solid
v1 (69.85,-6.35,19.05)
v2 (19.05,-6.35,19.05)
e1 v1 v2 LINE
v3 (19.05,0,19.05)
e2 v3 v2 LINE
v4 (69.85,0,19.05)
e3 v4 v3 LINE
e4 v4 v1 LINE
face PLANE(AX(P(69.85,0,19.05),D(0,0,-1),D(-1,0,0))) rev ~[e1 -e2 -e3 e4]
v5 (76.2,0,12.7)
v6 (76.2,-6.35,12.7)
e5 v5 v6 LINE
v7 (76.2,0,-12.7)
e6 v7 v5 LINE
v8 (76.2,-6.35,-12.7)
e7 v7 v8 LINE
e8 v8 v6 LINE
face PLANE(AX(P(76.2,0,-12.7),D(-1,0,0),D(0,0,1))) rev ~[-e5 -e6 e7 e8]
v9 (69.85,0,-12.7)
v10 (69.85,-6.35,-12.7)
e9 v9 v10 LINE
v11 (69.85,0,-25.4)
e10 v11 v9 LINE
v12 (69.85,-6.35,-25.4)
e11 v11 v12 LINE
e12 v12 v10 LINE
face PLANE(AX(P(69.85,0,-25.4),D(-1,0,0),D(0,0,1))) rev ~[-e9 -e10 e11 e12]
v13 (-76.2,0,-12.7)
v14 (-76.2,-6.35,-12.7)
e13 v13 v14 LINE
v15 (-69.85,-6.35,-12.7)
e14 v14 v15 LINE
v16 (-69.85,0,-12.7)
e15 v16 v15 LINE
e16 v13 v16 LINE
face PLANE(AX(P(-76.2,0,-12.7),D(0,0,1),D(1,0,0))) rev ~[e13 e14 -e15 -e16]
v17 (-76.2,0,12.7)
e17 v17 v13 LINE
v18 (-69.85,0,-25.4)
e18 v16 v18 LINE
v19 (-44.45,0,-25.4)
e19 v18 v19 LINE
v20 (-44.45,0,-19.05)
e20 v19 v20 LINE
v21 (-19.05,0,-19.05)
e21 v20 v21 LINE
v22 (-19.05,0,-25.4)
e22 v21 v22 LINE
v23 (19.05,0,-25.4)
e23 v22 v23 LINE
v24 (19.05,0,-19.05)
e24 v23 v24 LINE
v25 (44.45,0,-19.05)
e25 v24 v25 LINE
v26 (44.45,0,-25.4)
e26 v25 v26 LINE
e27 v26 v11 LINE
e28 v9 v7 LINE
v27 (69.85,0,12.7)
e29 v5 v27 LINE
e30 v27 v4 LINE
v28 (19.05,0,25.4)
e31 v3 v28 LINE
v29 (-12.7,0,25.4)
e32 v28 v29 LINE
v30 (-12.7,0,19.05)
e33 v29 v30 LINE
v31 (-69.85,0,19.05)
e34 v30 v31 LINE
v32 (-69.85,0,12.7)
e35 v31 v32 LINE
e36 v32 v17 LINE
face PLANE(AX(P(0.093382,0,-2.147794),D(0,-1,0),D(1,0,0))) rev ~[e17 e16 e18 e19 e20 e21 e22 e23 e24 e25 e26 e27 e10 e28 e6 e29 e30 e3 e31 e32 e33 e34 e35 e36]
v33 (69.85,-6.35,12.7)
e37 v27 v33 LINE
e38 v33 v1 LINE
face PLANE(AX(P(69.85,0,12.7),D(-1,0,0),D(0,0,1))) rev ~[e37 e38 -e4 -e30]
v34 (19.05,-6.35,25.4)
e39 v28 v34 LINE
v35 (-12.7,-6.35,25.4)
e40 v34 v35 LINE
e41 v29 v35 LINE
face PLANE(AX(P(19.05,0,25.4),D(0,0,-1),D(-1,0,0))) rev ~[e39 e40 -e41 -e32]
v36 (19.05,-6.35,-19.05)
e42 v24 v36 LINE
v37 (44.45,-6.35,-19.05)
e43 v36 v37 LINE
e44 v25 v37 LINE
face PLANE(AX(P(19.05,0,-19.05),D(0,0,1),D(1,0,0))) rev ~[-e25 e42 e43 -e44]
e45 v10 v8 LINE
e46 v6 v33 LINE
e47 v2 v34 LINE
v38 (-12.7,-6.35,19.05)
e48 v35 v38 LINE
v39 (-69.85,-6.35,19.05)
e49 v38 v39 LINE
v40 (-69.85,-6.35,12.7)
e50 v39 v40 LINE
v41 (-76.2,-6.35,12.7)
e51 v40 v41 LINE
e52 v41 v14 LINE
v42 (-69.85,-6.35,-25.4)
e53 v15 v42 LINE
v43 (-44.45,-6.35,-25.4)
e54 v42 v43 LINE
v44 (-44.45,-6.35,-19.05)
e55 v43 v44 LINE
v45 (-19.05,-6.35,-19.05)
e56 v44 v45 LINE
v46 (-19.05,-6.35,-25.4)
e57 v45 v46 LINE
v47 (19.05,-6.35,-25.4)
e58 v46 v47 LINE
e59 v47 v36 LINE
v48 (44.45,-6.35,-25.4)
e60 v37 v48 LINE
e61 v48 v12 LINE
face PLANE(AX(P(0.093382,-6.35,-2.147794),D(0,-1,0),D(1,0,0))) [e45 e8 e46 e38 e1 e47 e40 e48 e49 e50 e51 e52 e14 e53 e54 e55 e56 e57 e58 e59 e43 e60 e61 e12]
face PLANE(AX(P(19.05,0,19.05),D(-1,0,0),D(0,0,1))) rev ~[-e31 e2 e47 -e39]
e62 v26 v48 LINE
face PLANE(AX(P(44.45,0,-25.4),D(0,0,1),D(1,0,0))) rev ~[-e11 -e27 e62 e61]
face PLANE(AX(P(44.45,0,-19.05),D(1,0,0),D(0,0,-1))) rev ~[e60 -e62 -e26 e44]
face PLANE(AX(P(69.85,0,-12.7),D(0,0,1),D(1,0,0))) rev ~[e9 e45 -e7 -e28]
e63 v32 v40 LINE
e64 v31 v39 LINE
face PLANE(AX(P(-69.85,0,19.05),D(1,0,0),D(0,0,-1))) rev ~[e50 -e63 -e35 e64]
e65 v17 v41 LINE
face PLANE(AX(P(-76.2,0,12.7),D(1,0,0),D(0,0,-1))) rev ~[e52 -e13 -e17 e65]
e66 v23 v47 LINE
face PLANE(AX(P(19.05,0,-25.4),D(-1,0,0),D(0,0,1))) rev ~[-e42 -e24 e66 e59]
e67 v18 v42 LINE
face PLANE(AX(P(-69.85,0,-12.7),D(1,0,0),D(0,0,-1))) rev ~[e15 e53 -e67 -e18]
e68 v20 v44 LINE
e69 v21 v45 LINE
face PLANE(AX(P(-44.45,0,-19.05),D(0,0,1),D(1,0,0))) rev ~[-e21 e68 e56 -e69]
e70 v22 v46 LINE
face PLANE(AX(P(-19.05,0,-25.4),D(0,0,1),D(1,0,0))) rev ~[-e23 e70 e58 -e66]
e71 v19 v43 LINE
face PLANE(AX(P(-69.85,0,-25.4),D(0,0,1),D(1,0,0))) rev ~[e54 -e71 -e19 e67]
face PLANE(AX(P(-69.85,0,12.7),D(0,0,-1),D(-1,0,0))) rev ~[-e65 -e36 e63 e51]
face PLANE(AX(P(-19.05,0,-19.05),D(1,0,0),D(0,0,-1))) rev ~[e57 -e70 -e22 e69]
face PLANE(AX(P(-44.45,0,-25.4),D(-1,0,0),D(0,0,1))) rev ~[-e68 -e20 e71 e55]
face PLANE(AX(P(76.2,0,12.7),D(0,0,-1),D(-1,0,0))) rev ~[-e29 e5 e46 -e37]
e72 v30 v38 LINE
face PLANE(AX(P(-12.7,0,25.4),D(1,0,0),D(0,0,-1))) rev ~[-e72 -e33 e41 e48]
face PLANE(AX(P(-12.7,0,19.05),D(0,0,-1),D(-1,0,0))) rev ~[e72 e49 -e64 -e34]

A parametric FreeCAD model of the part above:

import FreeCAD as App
import Part
import Sketcher
from FreeCAD import Vector
Q = App.Units.Quantity

doc = App.newDocument("Part")
body = doc.addObject("PartDesign::Body", "Body")

# Sketch on XZ plane
sketch1 = body.newObject("Sketcher::SketchObject", "Sketch")
sketch1.AttachmentSupport = (doc.getObject("XZ_Plane"), [""])
sketch1.MapMode = "FlatFace"
sketch1.addGeometry(Part.LineSegment(Vector(-70, 13, 0), Vector(-76, 13, 0)), False)
sketch1.addGeometry(Part.LineSegment(Vector(-76, 13, 0), Vector(-76, -13, 0)), False)
sketch1.addGeometry(Part.LineSegment(Vector(-76, -13, 0), Vector(-70, -13, 0)), False)
sketch1.addGeometry(Part.LineSegment(Vector(-70, -13, 0), Vector(-70, -25, 0)), False)
sketch1.addGeometry(Part.LineSegment(Vector(-70, -25, 0), Vector(-44, -25, 0)), False)
sketch1.addGeometry(Part.LineSegment(Vector(-44, -25, 0), Vector(-44, -19, 0)), False)
sketch1.addGeometry(Part.LineSegment(Vector(-44, -19, 0), Vector(-19, -19, 0)), False)
sketch1.addGeometry(Part.LineSegment(Vector(-19, -19, 0), Vector(-19, -25, 0)), False)
sketch1.addGeometry(Part.LineSegment(Vector(-19, -25, 0), Vector(19, -25, 0)), False)
sketch1.addGeometry(Part.LineSegment(Vector(19, -25, 0), Vector(19, -19, 0)), False)
sketch1.addGeometry(Part.LineSegment(Vector(19, -19, 0), Vector(44, -19, 0)), False)
sketch1.addGeometry(Part.LineSegment(Vector(44, -19, 0), Vector(44, -25, 0)), False)
sketch1.addGeometry(Part.LineSegment(Vector(44, -25, 0), Vector(70, -25, 0)), False)
sketch1.addGeometry(Part.LineSegment(Vector(70, -25, 0), Vector(70, -13, 0)), False)
sketch1.addGeometry(Part.LineSegment(Vector(70, -13, 0), Vector(76, -13, 0)), False)
sketch1.addGeometry(Part.LineSegment(Vector(76, -13, 0), Vector(76, 13, 0)), False)
sketch1.addGeometry(Part.LineSegment(Vector(76, 13, 0), Vector(70, 13, 0)), False)
sketch1.addGeometry(Part.LineSegment(Vector(70, 13, 0), Vector(70, 19, 0)), False)
sketch1.addGeometry(Part.LineSegment(Vector(70, 19, 0), Vector(19, 19, 0)), False)
sketch1.addGeometry(Part.LineSegment(Vector(19, 19, 0), Vector(19, 25, 0)), False)
sketch1.addGeometry(Part.LineSegment(Vector(19, 25, 0), Vector(-13, 25, 0)), False)
sketch1.addGeometry(Part.LineSegment(Vector(-13, 25, 0), Vector(-13, 19, 0)), False)
sketch1.addGeometry(Part.LineSegment(Vector(-13, 19, 0), Vector(-70, 19, 0)), False)
sketch1.addGeometry(Part.LineSegment(Vector(-70, 19, 0), Vector(-70, 13, 0)), False)
sketch1.addConstraint(Sketcher.Constraint("Coincident", 0, 2, 1, 1))
sketch1.addConstraint(Sketcher.Constraint("Coincident", 1, 2, 2, 1))
sketch1.addConstraint(Sketcher.Constraint("Coincident", 2, 2, 3, 1))
sketch1.addConstraint(Sketcher.Constraint("Coincident", 3, 2, 4, 1))
sketch1.addConstraint(Sketcher.Constraint("Coincident", 4, 2, 5, 1))
sketch1.addConstraint(Sketcher.Constraint("Coincident", 5, 2, 6, 1))
sketch1.addConstraint(Sketcher.Constraint("Coincident", 6, 2, 7, 1))
sketch1.addConstraint(Sketcher.Constraint("Coincident", 7, 2, 8, 1))
sketch1.addConstraint(Sketcher.Constraint("Coincident", 8, 2, 9, 1))
sketch1.addConstraint(Sketcher.Constraint("Coincident", 9, 2, 10, 1))
sketch1.addConstraint(Sketcher.Constraint("Coincident", 10, 2, 11, 1))
sketch1.addConstraint(Sketcher.Constraint("Coincident", 11, 2, 12, 1))
sketch1.addConstraint(Sketcher.Constraint("Coincident", 12, 2, 13, 1))
sketch1.addConstraint(Sketcher.Constraint("Coincident", 13, 2, 14, 1))
sketch1.addConstraint(Sketcher.Constraint("Coincident", 14, 2, 15, 1))
sketch1.addConstraint(Sketcher.Constraint("Coincident", 15, 2, 16, 1))
sketch1.addConstraint(Sketcher.Constraint("Coincident", 16, 2, 17, 1))
sketch1.addConstraint(Sketcher.Constraint("Coincident", 17, 2, 18, 1))
sketch1.addConstraint(Sketcher.Constraint("Coincident", 18, 2, 19, 1))
sketch1.addConstraint(Sketcher.Constraint("Coincident", 19, 2, 20, 1))
sketch1.addConstraint(Sketcher.Constraint("Coincident", 20, 2, 21, 1))
sketch1.addConstraint(Sketcher.Constraint("Coincident", 21, 2, 22, 1))
sketch1.addConstraint(Sketcher.Constraint("Coincident", 22, 2, 23, 1))
sketch1.addConstraint(Sketcher.Constraint("Coincident", 23, 2, 0, 1))
sketch1.addConstraint(Sketcher.Constraint("Horizontal", 0))
sketch1.addConstraint(Sketcher.Constraint("Vertical", 1))
sketch1.addConstraint(Sketcher.Constraint("Horizontal", 2))
sketch1.addConstraint(Sketcher.Constraint("Vertical", 3))
sketch1.addConstraint(Sketcher.Constraint("Horizontal", 4))
sketch1.addConstraint(Sketcher.Constraint("Vertical", 5))
sketch1.addConstraint(Sketcher.Constraint("Horizontal", 6))
sketch1.addConstraint(Sketcher.Constraint("Vertical", 7))
sketch1.addConstraint(Sketcher.Constraint("Horizontal", 8))
sketch1.addConstraint(Sketcher.Constraint("Vertical", 9))
sketch1.addConstraint(Sketcher.Constraint("Horizontal", 10))
sketch1.addConstraint(Sketcher.Constraint("Vertical", 11))
sketch1.addConstraint(Sketcher.Constraint("Horizontal", 12))
sketch1.addConstraint(Sketcher.Constraint("Vertical", 13))
sketch1.addConstraint(Sketcher.Constraint("Horizontal", 14))
sketch1.addConstraint(Sketcher.Constraint("Vertical", 15))
sketch1.addConstraint(Sketcher.Constraint("Horizontal", 16))
sketch1.addConstraint(Sketcher.Constraint("Vertical", 17))
sketch1.addConstraint(Sketcher.Constraint("Horizontal", 18))
sketch1.addConstraint(Sketcher.Constraint("Vertical", 19))
sketch1.addConstraint(Sketcher.Constraint("Horizontal", 20))
sketch1.addConstraint(Sketcher.Constraint("Vertical", 21))
sketch1.addConstraint(Sketcher.Constraint("Horizontal", 22))
sketch1.addConstraint(Sketcher.Constraint("Vertical", 23))
sketch1.addConstraint(Sketcher.Constraint("Symmetric", 0, 2, 14, 2, -1, 1))
sketch1.addConstraint(Sketcher.Constraint("Symmetric", 2, 2, 16, 2, -1, 1))
sketch1.addConstraint(Sketcher.Constraint("Symmetric", 6, 2, 18, 2, -1, 1))
sketch1.addConstraint(Sketcher.Constraint("Symmetric", 6, 2, 9, 2, -2))
sketch1.addConstraint(Sketcher.Constraint("Symmetric", 4, 2, 11, 2, -2))
sketch1.addConstraint(Sketcher.Constraint("Symmetric", 2, 2, 13, 2, -2))
sketch1.addConstraint(Sketcher.Constraint("Symmetric", 17, 2, 22, 2, -2))
sketch1.addConstraint(Sketcher.Constraint("Horizontal", 4, 2, 7, 2))
sketch1.addConstraint(Sketcher.Constraint("Equal", 4, 6))
sketch1.addConstraint(Sketcher.Constraint("Equal", 12, 1))
sketch1.addConstraint(Sketcher.Constraint("Equal", 16, 5))
sketch1.addConstraint(Sketcher.Constraint("Equal", 11, 17))
sketch1.addConstraint(Sketcher.Constraint("Equal", 17, 19))
sketch1.addConstraint(Sketcher.Constraint("DistanceX", 4, 1, 4, 2, Q("1 in")))
sketch1.addConstraint(Sketcher.Constraint("DistanceX", 8, 1, 8, 2, Q("1.5 in")))
sketch1.addConstraint(Sketcher.Constraint("DistanceY", 3, 2, 3, 1, Q("0.5 in")))
sketch1.addConstraint(Sketcher.Constraint("DistanceX", 20, 2, 20, 1, Q("1.25 in")))
pad1 = body.newObject("PartDesign::Pad", "Pad")
pad1.Profile = sketch1
pad1.Length = Q("0.25 in")

doc.recompute()
